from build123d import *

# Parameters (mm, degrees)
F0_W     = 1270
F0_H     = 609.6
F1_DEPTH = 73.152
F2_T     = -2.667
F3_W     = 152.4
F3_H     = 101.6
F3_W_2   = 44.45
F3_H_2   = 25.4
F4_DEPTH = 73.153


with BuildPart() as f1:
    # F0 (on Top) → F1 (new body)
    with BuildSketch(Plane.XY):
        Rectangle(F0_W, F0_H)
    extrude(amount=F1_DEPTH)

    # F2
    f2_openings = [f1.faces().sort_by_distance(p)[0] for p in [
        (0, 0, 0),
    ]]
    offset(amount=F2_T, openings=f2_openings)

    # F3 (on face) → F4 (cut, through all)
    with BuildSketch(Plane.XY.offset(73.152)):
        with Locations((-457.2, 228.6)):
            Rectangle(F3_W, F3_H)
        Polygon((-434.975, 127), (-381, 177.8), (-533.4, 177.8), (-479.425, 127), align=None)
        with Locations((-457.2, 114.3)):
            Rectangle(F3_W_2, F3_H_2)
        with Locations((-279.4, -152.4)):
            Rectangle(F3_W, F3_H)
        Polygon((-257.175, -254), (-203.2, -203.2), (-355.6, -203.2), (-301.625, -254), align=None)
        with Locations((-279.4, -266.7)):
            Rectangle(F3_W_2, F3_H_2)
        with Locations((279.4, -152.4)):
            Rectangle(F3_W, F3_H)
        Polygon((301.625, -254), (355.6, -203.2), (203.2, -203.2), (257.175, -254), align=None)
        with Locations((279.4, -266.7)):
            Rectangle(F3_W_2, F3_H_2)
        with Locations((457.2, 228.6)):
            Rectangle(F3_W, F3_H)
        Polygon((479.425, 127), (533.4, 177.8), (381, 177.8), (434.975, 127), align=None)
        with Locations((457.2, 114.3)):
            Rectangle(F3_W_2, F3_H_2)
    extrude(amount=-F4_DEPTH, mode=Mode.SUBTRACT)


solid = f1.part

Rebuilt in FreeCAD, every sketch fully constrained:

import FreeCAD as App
import Part
import Sketcher
from FreeCAD import Vector
Q = App.Units.Quantity


def faces_at(feature, points):
    """Names of the faces that lie closest to the given points."""
    faces = feature.Shape.Faces
    near = lambda p: min(range(len(faces)), key=lambda i: faces[i].distToShape(Part.Vertex(*p))[0])
    return sorted({f"Face{near(p) + 1}" for p in points})


def add_polygon(sketch, points):
    """Adds a closed chain of lines whose ends are joined by coincident constraints."""
    first, n = sketch.GeometryCount, len(points)
    for a, b in zip(points, points[1:] + points[:1]):
        sketch.addGeometry(Part.LineSegment(App.Vector(*a, 0), App.Vector(*b, 0)), False)
    for i in range(n):
        sketch.addConstraint(Sketcher.Constraint("Coincident", first + i, 2, first + (i + 1) % n, 1))

doc = App.newDocument("Part")
body = doc.addObject("PartDesign::Body", "Body")

# Sketch on XY plane
sketch1 = body.newObject("Sketcher::SketchObject", "Sketch")
sketch1.AttachmentSupport = (doc.getObject("XY_Plane"), [""])
sketch1.MapMode = "FlatFace"
add_polygon(sketch1, [(-635, 305), (-635, -305), (635, -305), (635, 305)])  # lines 0-3
sketch1.addConstraint(Sketcher.Constraint("Vertical", 0))
sketch1.addConstraint(Sketcher.Constraint("Horizontal", 1))
sketch1.addConstraint(Sketcher.Constraint("Vertical", 2))
sketch1.addConstraint(Sketcher.Constraint("Horizontal", 3))
sketch1.addConstraint(Sketcher.Constraint("Symmetric", 0, 2, 2, 2, -1, 1))
sketch1.addConstraint(Sketcher.Constraint("DistanceX", 1, 1, 1, 2, Q("50 in")))
sketch1.addConstraint(Sketcher.Constraint("DistanceY", 0, 2, 0, 1, Q("24 in")))
pad1 = body.newObject("PartDesign::Pad", "Pad")
pad1.Profile = sketch1
pad1.Length = Q("2.88 in")
doc.recompute()

thickness = body.newObject("PartDesign::Thickness", "Thickness")
thickness.Base = (pad1, faces_at(pad1, [(0, 0, 0)]))
thickness.Value = Q("0.105 in")
thickness.Reversed = True
thickness.Join = "Arc"

# Sketch on XY plane
sketch2 = body.newObject("Sketcher::SketchObject", "Sketch001")
sketch2.AttachmentSupport = (doc.getObject("XY_Plane"), [""])
sketch2.MapMode = "FlatFace"
sketch2.AttachmentOffset = App.Placement(Vector(0, 0, 2.88 * 25.4), App.Rotation())
add_polygon(sketch2, [(-533, 279), (-533, 178), (-479, 127), (-479, 102), (-435, 102), (-435, 127), (-381, 178), (-381, 279)])  # lines 0-7
add_polygon(sketch2, [(-356, -102), (-356, -203), (-302, -254), (-302, -279), (-257, -279), (-257, -254), (-203, -203), (-203, -102)])  # lines 8-15
add_polygon(sketch2, [(203, -102), (203, -203), (257, -254), (257, -279), (302, -279), (302, -254), (356, -203), (356, -102)])  # lines 16-23
add_polygon(sketch2, [(381, 279), (381, 178), (435, 127), (435, 102), (479, 102), (479, 127), (533, 178), (533, 279)])  # lines 24-31
sketch2.addConstraint(Sketcher.Constraint("Vertical", 0))
sketch2.addConstraint(Sketcher.Constraint("Vertical", 2))
sketch2.addConstraint(Sketcher.Constraint("Horizontal", 3))
sketch2.addConstraint(Sketcher.Constraint("Vertical", 4))
sketch2.addConstraint(Sketcher.Constraint("Vertical", 6))
sketch2.addConstraint(Sketcher.Constraint("Horizontal", 7))
sketch2.addConstraint(Sketcher.Constraint("Vertical", 8))
sketch2.addConstraint(Sketcher.Constraint("Vertical", 10))
sketch2.addConstraint(Sketcher.Constraint("Horizontal", 11))
sketch2.addConstraint(Sketcher.Constraint("Vertical", 12))
sketch2.addConstraint(Sketcher.Constraint("Vertical", 14))
sketch2.addConstraint(Sketcher.Constraint("Horizontal", 15))
sketch2.addConstraint(Sketcher.Constraint("Vertical", 16))
sketch2.addConstraint(Sketcher.Constraint("Vertical", 18))
sketch2.addConstraint(Sketcher.Constraint("Horizontal", 19))
sketch2.addConstraint(Sketcher.Constraint("Vertical", 20))
sketch2.addConstraint(Sketcher.Constraint("Vertical", 22))
sketch2.addConstraint(Sketcher.Constraint("Horizontal", 23))
sketch2.addConstraint(Sketcher.Constraint("Vertical", 24))
sketch2.addConstraint(Sketcher.Constraint("Vertical", 26))
sketch2.addConstraint(Sketcher.Constraint("Horizontal", 27))
sketch2.addConstraint(Sketcher.Constraint("Vertical", 28))
sketch2.addConstraint(Sketcher.Constraint("Vertical", 30))
sketch2.addConstraint(Sketcher.Constraint("Horizontal", 31))
sketch2.addConstraint(Sketcher.Constraint("Symmetric", 13, 2, 16, 2, -2))
sketch2.addConstraint(Sketcher.Constraint("Symmetric", 12, 2, 17, 2, -2))
sketch2.addConstraint(Sketcher.Constraint("Symmetric", 10, 2, 19, 2, -2))
sketch2.addConstraint(Sketcher.Constraint("Symmetric", 8, 2, 21, 2, -2))
sketch2.addConstraint(Sketcher.Constraint("Symmetric", 5, 2, 24, 2, -2))
sketch2.addConstraint(Sketcher.Constraint("Symmetric", 4, 2, 25, 2, -2))
sketch2.addConstraint(Sketcher.Constraint("Symmetric", 2, 2, 27, 2, -2))
sketch2.addConstraint(Sketcher.Constraint("Symmetric", 0, 2, 29, 2, -2))
sketch2.addConstraint(Sketcher.Constraint("Parallel", 1, 9))
sketch2.addConstraint(Sketcher.Constraint("Parallel", 5, 13))
sketch2.addConstraint(Sketcher.Constraint("Parallel", 9, 17))
sketch2.addConstraint(Sketcher.Constraint("Parallel", 13, 21))
sketch2.addConstraint(Sketcher.Constraint("Parallel", 21, 29))
sketch2.addConstraint(Sketcher.Constraint("Horizontal", 1, 2, 4, 2))
sketch2.addConstraint(Sketcher.Constraint("Horizontal", 0, 2, 5, 2))
sketch2.addConstraint(Sketcher.Constraint("Horizontal", 9, 2, 12, 2))
sketch2.addConstraint(Sketcher.Constraint("Horizontal", 8, 2, 13, 2))
sketch2.addConstraint(Sketcher.Constraint("Horizontal", 15, 2, 22, 2))
sketch2.addConstraint(Sketcher.Constraint("Horizontal", 7, 2, 30, 2))
sketch2.addConstraint(Sketcher.Constraint("Equal", 3, 11))
sketch2.addConstraint(Sketcher.Constraint("Equal", 7, 15))
sketch2.addConstraint(Sketcher.Constraint("Equal", 6, 8))
sketch2.addConstraint(Sketcher.Constraint("Equal", 4, 10))
sketch2.addConstraint(Sketcher.Constraint("DistanceX", 7, 2, 7, 1, Q("6 in")))
sketch2.addConstraint(Sketcher.Constraint("DistanceY", 0, 2, 0, 1, Q("4 in")))
sketch2.addConstraint(Sketcher.Constraint("DistanceY", 2, 2, 2, 1, Q("1 in")))
sketch2.addConstraint(Sketcher.Constraint("DistanceX", 0, 2, -1, 1, Q("21 in")))
sketch2.addConstraint(Sketcher.Constraint("DistanceY", -1, 1, 0, 2, Q("7 in")))
sketch2.addConstraint(Sketcher.Constraint("DistanceY", -1, 1, 1, 2, Q("5 in")))
sketch2.addConstraint(Sketcher.Constraint("DistanceX", 8, 2, -1, 1, Q("14 in")))
sketch2.addConstraint(Sketcher.Constraint("DistanceY", 8, 2, -1, 1, Q("8 in")))
sketch2.addConstraint(Sketcher.Constraint("DistanceX", 3, 1, 3, 2, Q("1.75 in")))
pocket1 = body.newObject("PartDesign::Pocket", "Pocket")
pocket1.Profile = sketch2
pocket1.Type = "ThroughAll"

doc.recompute()
